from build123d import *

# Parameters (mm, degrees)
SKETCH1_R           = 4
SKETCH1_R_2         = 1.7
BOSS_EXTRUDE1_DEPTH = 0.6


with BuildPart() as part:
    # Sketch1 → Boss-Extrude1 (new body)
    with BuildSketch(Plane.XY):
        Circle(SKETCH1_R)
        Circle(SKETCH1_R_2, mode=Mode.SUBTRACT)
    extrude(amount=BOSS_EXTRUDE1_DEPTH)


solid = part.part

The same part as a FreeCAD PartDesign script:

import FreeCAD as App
import Part
import Sketcher
from FreeCAD import Vector
Q = App.Units.Quantity

doc = App.newDocument("Part")
params = doc.addObject("Spreadsheet::Sheet", "Params")
for row, (alias, value) in enumerate([
    ("sketch1_diameter", "8 mm"),
    ("sketch1_diameter2", "3.4 mm"),
    ("pad1_length", "0.6 mm"),
], start=1):
    params.set(f"A{row}", alias)
    params.set(f"B{row}", "=" + value)
    params.setAlias(f"B{row}", alias)

body = doc.addObject("PartDesign::Body", "Body")

# Sketch on XY plane
sketch1 = doc.addObject("Sketcher::SketchObject", "Sketch")
body.addObject(sketch1)
sketch1.AttachmentSupport = (doc.XY_Plane, [""])
sketch1.MapMode = "FlatFace"
sketch1.addGeometry([
    Part.Circle(Vector(0, 0, 0), Vector(0, 0, 1), 4),
    Part.Circle(Vector(0, 0, 0), Vector(0, 0, 1), 1.7),
], False)
sketch1.addConstraint([
    Sketcher.Constraint("Coincident", 0, 3, -1, 1),
    Sketcher.Constraint("Coincident", 1, 3, -1, 1),
    Sketcher.Constraint("Diameter", 0, Q("8 mm")),
    Sketcher.Constraint("Diameter", 1, Q("3.4 mm")),
])
sketch1.setExpression("Constraints[2]", "Params.sketch1_diameter")
sketch1.setExpression("Constraints[3]", "Params.sketch1_diameter2")
pad1 = doc.addObject("PartDesign::Pad", "Pad")
body.addObject(pad1)
pad1.Profile = sketch1
pad1.setExpression("Length", "Params.pad1_length")

doc.recompute()
